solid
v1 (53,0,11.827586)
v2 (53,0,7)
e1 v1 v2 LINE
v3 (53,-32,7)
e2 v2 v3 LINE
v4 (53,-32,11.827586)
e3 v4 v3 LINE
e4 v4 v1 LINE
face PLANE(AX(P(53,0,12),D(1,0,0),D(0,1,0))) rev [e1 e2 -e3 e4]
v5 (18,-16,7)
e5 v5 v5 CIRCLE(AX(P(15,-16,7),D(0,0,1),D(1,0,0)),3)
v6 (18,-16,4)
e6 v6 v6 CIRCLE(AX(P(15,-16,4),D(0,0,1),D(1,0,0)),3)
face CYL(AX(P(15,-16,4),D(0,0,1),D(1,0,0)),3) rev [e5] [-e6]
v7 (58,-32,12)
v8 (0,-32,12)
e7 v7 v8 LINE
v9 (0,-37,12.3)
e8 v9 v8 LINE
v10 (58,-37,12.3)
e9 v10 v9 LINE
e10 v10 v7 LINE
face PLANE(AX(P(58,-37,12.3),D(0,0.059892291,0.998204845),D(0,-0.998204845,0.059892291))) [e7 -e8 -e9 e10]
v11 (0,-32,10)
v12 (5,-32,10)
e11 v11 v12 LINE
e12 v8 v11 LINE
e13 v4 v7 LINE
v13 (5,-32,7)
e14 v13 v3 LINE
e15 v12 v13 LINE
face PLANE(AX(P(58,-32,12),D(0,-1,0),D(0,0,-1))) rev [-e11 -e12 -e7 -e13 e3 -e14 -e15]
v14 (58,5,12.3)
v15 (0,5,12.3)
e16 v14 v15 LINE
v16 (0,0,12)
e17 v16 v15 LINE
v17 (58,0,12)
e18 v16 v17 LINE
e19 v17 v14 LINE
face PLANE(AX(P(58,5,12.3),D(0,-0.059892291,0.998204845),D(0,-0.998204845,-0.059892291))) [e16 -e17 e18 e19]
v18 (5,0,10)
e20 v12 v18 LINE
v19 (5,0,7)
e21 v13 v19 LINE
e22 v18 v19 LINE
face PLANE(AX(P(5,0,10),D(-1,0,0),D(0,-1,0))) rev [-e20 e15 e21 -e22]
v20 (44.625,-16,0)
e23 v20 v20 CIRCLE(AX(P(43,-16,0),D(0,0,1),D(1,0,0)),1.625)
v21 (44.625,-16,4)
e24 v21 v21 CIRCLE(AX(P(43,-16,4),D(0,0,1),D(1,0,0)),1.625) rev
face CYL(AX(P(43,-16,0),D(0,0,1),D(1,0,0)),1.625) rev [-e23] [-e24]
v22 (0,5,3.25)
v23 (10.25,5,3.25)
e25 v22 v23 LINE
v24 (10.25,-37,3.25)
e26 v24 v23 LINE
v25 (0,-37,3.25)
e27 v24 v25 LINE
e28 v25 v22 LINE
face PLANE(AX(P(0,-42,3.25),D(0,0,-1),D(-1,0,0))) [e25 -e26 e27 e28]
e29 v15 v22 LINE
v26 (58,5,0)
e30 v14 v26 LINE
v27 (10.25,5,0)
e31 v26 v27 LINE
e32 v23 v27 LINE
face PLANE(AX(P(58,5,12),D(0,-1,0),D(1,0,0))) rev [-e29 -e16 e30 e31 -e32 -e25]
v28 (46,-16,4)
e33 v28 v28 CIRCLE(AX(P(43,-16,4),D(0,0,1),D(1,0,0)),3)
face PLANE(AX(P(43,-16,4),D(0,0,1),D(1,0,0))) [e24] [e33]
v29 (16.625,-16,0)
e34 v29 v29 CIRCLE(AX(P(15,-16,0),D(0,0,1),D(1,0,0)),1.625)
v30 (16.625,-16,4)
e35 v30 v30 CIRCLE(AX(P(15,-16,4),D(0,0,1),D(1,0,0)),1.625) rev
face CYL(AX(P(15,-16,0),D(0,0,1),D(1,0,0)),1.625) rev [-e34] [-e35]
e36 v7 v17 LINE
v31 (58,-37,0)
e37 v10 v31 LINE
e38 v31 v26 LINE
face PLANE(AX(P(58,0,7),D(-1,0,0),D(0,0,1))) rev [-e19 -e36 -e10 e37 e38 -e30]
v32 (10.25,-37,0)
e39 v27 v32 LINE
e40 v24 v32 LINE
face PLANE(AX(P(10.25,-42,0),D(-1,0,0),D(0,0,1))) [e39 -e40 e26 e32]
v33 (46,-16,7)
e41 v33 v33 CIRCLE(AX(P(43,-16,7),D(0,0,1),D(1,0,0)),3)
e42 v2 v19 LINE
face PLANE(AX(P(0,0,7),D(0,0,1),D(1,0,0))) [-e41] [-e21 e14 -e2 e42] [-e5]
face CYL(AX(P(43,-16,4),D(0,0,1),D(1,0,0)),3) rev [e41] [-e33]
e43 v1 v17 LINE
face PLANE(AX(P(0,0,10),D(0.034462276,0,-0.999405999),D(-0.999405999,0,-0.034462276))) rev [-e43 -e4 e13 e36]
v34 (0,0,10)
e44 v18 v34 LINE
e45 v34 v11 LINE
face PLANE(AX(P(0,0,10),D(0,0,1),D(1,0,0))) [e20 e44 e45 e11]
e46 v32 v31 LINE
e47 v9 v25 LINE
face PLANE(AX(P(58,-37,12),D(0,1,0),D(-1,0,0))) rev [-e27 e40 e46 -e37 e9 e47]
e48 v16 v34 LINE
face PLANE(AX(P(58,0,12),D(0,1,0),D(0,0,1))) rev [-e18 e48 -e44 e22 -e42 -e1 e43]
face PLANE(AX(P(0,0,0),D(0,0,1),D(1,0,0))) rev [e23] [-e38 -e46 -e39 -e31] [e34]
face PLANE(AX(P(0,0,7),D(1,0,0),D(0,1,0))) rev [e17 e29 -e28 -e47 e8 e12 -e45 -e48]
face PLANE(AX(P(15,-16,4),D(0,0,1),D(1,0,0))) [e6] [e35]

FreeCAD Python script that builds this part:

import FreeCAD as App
import Part
import Sketcher
Q = App.Units.Quantity


def add_polygon(sketch, points):
    """Adds a closed chain of lines whose ends are joined by coincident constraints."""
    first, n = sketch.GeometryCount, len(points)
    for a, b in zip(points, points[1:] + points[:1]):
        sketch.addGeometry(Part.LineSegment(App.Vector(*a, 0), App.Vector(*b, 0)), False)
    for i in range(n):
        sketch.addConstraint(Sketcher.Constraint("Coincident", first + i, 2, first + (i + 1) % n, 1))

doc = App.newDocument("Part")
body = doc.addObject("PartDesign::Body", "Body")

sketch1 = body.newObject("Sketcher::SketchObject", "Sketch")
sketch1.AttachmentSupport = (doc.getObject("XY_Plane"), [""])
sketch1.MapMode = "FlatFace"
add_polygon(sketch1, [(0, 0), (0, -32), (58, -32), (58, 0)])
sketch1.addConstraint([
    Sketcher.Constraint("Vertical", 0),
    Sketcher.Constraint("Horizontal", 1),
    Sketcher.Constraint("Vertical", 2),
    Sketcher.Constraint("Horizontal", 3),
    Sketcher.Constraint("Coincident", 3, 2, -1, 1),
    Sketcher.Constraint("DistanceX", 1, 1, 1, 2, Q("58 mm")),
    Sketcher.Constraint("DistanceY", 0, 2, 0, 1, Q("32 mm")),
])
pad1 = body.newObject("PartDesign::Pad", "Pad")
pad1.Profile = sketch1
pad1.Length = 7

sketch2 = body.newObject("Sketcher::SketchObject", "Sketch001")
sketch2.AttachmentSupport = (doc.getObject("XY_Plane"), [""])
sketch2.MapMode = "FlatFace"
sketch2.AttachmentOffset = App.Placement(App.Vector(0, 0, 7), App.Rotation())
add_polygon(sketch2, [(0, 0), (0, -32), (5, -32), (5, 0)])
sketch2.addConstraint([
    Sketcher.Constraint("Vertical", 0),
    Sketcher.Constraint("Horizontal", 1),
    Sketcher.Constraint("Vertical", 2),
    Sketcher.Constraint("Horizontal", 3),
    Sketcher.Constraint("Coincident", 3, 2, -1, 1),
    Sketcher.Constraint("DistanceX", 1, 1, 1, 2, Q("5 mm")),
    Sketcher.Constraint("DistanceY", 0, 2, 0, 1, Q("32 mm")),
])
pad2 = body.newObject("PartDesign::Pad", "Pad001")
pad2.Profile = sketch2
pad2.Length = 3

sketch3 = body.newObject("Sketcher::SketchObject", "Sketch002")
sketch3.AttachmentSupport = (doc.getObject("XY_Plane"), [""])
sketch3.MapMode = "FlatFace"
sketch3.AttachmentOffset = App.Placement(App.Vector(0, 0, 7), App.Rotation())
add_polygon(sketch3, [(53, 0), (53, -32), (58, -32), (58, 0)])
sketch3.addConstraint([
    Sketcher.Constraint("Vertical", 0),
    Sketcher.Constraint("Horizontal", 1),
    Sketcher.Constraint("Vertical", 2),
    Sketcher.Constraint("Horizontal", 3),
    Sketcher.Constraint("PointOnObject", 2, 2, -1),
    Sketcher.Constraint("DistanceX", 1, 1, 1, 2, Q("5 mm")),
    Sketcher.Constraint("DistanceY", 0, 2, 0, 1, Q("32 mm")),
    Sketcher.Constraint("DistanceX", -1, 1, 0, 2, Q("53 mm")),
])
pad3 = body.newObject("PartDesign::Pad", "Pad002")
pad3.Profile = sketch3
pad3.Length = 5

sketch4 = body.newObject("Sketcher::SketchObject", "Sketch003")
sketch4.AttachmentSupport = (doc.getObject("XZ_Plane"), [""])
sketch4.MapMode = "FlatFace"
sketch4.AttachmentOffset = App.Placement(App.Vector(0, 0, 32), App.Rotation())
add_polygon(sketch4, [(0, 10), (58, 12), (0, 12)])
sketch4.addConstraint([
    Sketcher.Constraint("Horizontal", 1),
    Sketcher.Constraint("Vertical", 2),
    Sketcher.Constraint("PointOnObject", 1, 2, -2),
    Sketcher.Constraint("DistanceX", 1, 2, 1, 1, Q("58 mm")),
    Sketcher.Constraint("DistanceY", 2, 2, 2, 1, Q("2 mm")),
    Sketcher.Constraint("DistanceY", -1, 1, 0, 2, Q("12 mm")),
])
pocket1 = body.newObject("PartDesign::Pocket", "Pocket")
pocket1.Profile = sketch4
pocket1.Type = "ThroughAll"

sketch5 = body.newObject("Sketcher::SketchObject", "Sketch004")
sketch5.AttachmentSupport = (doc.getObject("XY_Plane"), [""])
sketch5.MapMode = "FlatFace"
sketch5.AttachmentOffset = App.Placement(App.Vector(0, 0, 7), App.Rotation())
sketch5.addGeometry([
    Part.Circle(App.Vector(43, -16, 0), App.Vector(0, 0, 1), 1.6),
    Part.Circle(App.Vector(15, -16, 0), App.Vector(0, 0, 1), 1.6),
], False)
sketch5.addConstraint([
    Sketcher.Constraint("Equal", 0, 1),
    Sketcher.Constraint("Horizontal", 0, 3, 1, 3),
    Sketcher.Constraint("Diameter", 0, Q("3.25 mm")),
    Sketcher.Constraint("DistanceX", -1, 1, 0, 3, Q("43 mm")),
    Sketcher.Constraint("DistanceY", 0, 3, -1, 1, Q("16 mm")),
    Sketcher.Constraint("DistanceX", -1, 1, 1, 3, Q("15 mm")),
])
pocket2 = body.newObject("PartDesign::Pocket", "Pocket001")
pocket2.Profile = sketch5
pocket2.Type = "ThroughAll"

sketch6 = body.newObject("Sketcher::SketchObject", "Sketch005")
sketch6.AttachmentSupport = (doc.getObject("XY_Plane"), [""])
sketch6.MapMode = "FlatFace"
sketch6.AttachmentOffset = App.Placement(App.Vector(0, 0, 7), App.Rotation())
sketch6.addGeometry([
    Part.Circle(App.Vector(15, -16, 0), App.Vector(0, 0, 1), 3),
    Part.Circle(App.Vector(43, -16, 0), App.Vector(0, 0, 1), 3),
], False)
sketch6.addConstraint([
    Sketcher.Constraint("Equal", 0, 1),
    Sketcher.Constraint("Horizontal", 0, 3, 1, 3),
    Sketcher.Constraint("Diameter", 0, Q("6 mm")),
    Sketcher.Constraint("DistanceX", -1, 1, 0, 3, Q("15 mm")),
    Sketcher.Constraint("DistanceY", 0, 3, -1, 1, Q("16 mm")),
    Sketcher.Constraint("DistanceX", -1, 1, 1, 3, Q("43 mm")),
])
pocket3 = body.newObject("PartDesign::Pocket", "Pocket002")
pocket3.Profile = sketch6
pocket3.Length = 3

sketch7 = body.newObject("Sketcher::SketchObject", "Sketch006")
sketch7.AttachmentSupport = (doc.getObject("XZ_Plane"), [""])
sketch7.MapMode = "FlatFace"
sketch7.AttachmentOffset = App.Placement(App.Vector(0, 0, 32), App.Rotation())
add_polygon(sketch7, [(0, 3.2), (0, 0), (10.2, 0), (10.2, 3.2)])
sketch7.addConstraint([
    Sketcher.Constraint("Vertical", 0),
    Sketcher.Constraint("Horizontal", 1),
    Sketcher.Constraint("Vertical", 2),
    Sketcher.Constraint("Horizontal", 3),
    Sketcher.Constraint("Coincident", 0, 2, -1, 1),
    Sketcher.Constraint("DistanceX", 1, 1, 1, 2, Q("10.25 mm")),
    Sketcher.Constraint("DistanceY", 0, 2, 0, 1, Q("3.25 mm")),
])
pocket4 = body.newObject("PartDesign::Pocket", "Pocket003")
pocket4.Profile = sketch7
pocket4.Type = "ThroughAll"
pocket4.Midplane = True

sketch8 = body.newObject("Sketcher::SketchObject", "Sketch007")
sketch8.AttachmentSupport = (doc.getObject("XY_Plane"), [""])
sketch8.MapMode = "FlatFace"
add_polygon(sketch8, [(0, 5), (0, 0), (58, 0), (58, 5)])
add_polygon(sketch8, [(0, -32), (0, -37), (58, -37), (58, -32)])
sketch8.addConstraint([
    Sketcher.Constraint("Vertical", 0),
    Sketcher.Constraint("Horizontal", 1),
    Sketcher.Constraint("Vertical", 2),
    Sketcher.Constraint("Horizontal", 3),
    Sketcher.Constraint("Vertical", 4),
    Sketcher.Constraint("Horizontal", 5),
    Sketcher.Constraint("Vertical", 6),
    Sketcher.Constraint("Horizontal", 7),
    Sketcher.Constraint("Coincident", 0, 2, -1, 1),
    Sketcher.Constraint("PointOnObject", 4, 2, -2),
    Sketcher.Constraint("Vertical", 2, 2, 5, 2),
    Sketcher.Constraint("Equal", 2, 4),
    Sketcher.Constraint("DistanceX", 1, 1, 1, 2, Q("58 mm")),
    Sketcher.Constraint("DistanceY", 0, 2, 0, 1, Q("5 mm")),
    Sketcher.Constraint("DistanceY", 4, 2, -1, 1, Q("37 mm")),
])
pad4 = body.newObject("PartDesign::Pad", "Pad003")
pad4.Profile = sketch8
pad4.Length = 12

sketch9 = body.newObject("Sketcher::SketchObject", "Sketch008")
sketch9.AttachmentSupport = (doc.getObject("YZ_Plane"), [""])
sketch9.MapMode = "FlatFace"
add_polygon(sketch9, [(5, 12.3), (5, 12), (0, 12)])
add_polygon(sketch9, [(-32, 12), (-37, 12), (-37, 12.3)])
sketch9.addConstraint([
    Sketcher.Constraint("Vertical", 0),
    Sketcher.Constraint("Horizontal", 1),
    Sketcher.Constraint("Horizontal", 3),
    Sketcher.Constraint("Vertical", 4),
    Sketcher.Constraint("PointOnObject", 1, 2, -2),
    Sketcher.Constraint("Horizontal", 1, 2, 3, 2),
    Sketcher.Constraint("Horizontal", 2, 2, 4, 2),
    Sketcher.Constraint("Equal", 1, 3),
    Sketcher.Constraint("DistanceX", 1, 2, 1, 1, Q("5 mm")),
    Sketcher.Constraint("DistanceY", 0, 2, 0, 1, Q("0.3 mm")),
    Sketcher.Constraint("DistanceY", -1, 1, 0, 2, Q("12 mm")),
    Sketcher.Constraint("DistanceX", 3, 2, -1, 1, Q("37 mm")),
])
pad5 = body.newObject("PartDesign::Pad", "Pad004")
pad5.Profile = sketch9
pad5.Length = 58

sketch10 = body.newObject("Sketcher::SketchObject", "Sketch009")
sketch10.AttachmentSupport = (doc.getObject("XY_Plane"), [""])
sketch10.MapMode = "FlatFace"
add_polygon(sketch10, [(10, -32), (10, -37), (0, -37), (0, -32)])
add_polygon(sketch10, [(10, 5), (10, 0), (0, 0), (0, 5)])
sketch10.addConstraint([
    Sketcher.Constraint("Vertical", 0),
    Sketcher.Constraint("Horizontal", 1),
    Sketcher.Constraint("Vertical", 2),
    Sketcher.Constraint("Horizontal", 3),
    Sketcher.Constraint("Vertical", 4),
    Sketcher.Constraint("Horizontal", 5),
    Sketcher.Constraint("Vertical", 6),
    Sketcher.Constraint("Horizontal", 7),
    Sketcher.Constraint("Coincident", 5, 2, -1, 1),
    Sketcher.Constraint("PointOnObject", 1, 2, -2),
    Sketcher.Constraint("Vertical", 3, 2, 4, 2),
    Sketcher.Constraint("Equal", 2, 4),
    Sketcher.Constraint("DistanceY", 0, 2, 0, 1, Q("5 mm")),
    Sketcher.Constraint("DistanceY", 0, 2, -1, 1, Q("37 mm")),
    Sketcher.Constraint("DistanceX", 1, 2, 1, 1, Q("10.25 mm")),
])
pocket5 = body.newObject("PartDesign::Pocket", "Pocket004")
pocket5.Profile = sketch10
pocket5.Length = 3.25
pocket5.Reversed = True

doc.recompute()
